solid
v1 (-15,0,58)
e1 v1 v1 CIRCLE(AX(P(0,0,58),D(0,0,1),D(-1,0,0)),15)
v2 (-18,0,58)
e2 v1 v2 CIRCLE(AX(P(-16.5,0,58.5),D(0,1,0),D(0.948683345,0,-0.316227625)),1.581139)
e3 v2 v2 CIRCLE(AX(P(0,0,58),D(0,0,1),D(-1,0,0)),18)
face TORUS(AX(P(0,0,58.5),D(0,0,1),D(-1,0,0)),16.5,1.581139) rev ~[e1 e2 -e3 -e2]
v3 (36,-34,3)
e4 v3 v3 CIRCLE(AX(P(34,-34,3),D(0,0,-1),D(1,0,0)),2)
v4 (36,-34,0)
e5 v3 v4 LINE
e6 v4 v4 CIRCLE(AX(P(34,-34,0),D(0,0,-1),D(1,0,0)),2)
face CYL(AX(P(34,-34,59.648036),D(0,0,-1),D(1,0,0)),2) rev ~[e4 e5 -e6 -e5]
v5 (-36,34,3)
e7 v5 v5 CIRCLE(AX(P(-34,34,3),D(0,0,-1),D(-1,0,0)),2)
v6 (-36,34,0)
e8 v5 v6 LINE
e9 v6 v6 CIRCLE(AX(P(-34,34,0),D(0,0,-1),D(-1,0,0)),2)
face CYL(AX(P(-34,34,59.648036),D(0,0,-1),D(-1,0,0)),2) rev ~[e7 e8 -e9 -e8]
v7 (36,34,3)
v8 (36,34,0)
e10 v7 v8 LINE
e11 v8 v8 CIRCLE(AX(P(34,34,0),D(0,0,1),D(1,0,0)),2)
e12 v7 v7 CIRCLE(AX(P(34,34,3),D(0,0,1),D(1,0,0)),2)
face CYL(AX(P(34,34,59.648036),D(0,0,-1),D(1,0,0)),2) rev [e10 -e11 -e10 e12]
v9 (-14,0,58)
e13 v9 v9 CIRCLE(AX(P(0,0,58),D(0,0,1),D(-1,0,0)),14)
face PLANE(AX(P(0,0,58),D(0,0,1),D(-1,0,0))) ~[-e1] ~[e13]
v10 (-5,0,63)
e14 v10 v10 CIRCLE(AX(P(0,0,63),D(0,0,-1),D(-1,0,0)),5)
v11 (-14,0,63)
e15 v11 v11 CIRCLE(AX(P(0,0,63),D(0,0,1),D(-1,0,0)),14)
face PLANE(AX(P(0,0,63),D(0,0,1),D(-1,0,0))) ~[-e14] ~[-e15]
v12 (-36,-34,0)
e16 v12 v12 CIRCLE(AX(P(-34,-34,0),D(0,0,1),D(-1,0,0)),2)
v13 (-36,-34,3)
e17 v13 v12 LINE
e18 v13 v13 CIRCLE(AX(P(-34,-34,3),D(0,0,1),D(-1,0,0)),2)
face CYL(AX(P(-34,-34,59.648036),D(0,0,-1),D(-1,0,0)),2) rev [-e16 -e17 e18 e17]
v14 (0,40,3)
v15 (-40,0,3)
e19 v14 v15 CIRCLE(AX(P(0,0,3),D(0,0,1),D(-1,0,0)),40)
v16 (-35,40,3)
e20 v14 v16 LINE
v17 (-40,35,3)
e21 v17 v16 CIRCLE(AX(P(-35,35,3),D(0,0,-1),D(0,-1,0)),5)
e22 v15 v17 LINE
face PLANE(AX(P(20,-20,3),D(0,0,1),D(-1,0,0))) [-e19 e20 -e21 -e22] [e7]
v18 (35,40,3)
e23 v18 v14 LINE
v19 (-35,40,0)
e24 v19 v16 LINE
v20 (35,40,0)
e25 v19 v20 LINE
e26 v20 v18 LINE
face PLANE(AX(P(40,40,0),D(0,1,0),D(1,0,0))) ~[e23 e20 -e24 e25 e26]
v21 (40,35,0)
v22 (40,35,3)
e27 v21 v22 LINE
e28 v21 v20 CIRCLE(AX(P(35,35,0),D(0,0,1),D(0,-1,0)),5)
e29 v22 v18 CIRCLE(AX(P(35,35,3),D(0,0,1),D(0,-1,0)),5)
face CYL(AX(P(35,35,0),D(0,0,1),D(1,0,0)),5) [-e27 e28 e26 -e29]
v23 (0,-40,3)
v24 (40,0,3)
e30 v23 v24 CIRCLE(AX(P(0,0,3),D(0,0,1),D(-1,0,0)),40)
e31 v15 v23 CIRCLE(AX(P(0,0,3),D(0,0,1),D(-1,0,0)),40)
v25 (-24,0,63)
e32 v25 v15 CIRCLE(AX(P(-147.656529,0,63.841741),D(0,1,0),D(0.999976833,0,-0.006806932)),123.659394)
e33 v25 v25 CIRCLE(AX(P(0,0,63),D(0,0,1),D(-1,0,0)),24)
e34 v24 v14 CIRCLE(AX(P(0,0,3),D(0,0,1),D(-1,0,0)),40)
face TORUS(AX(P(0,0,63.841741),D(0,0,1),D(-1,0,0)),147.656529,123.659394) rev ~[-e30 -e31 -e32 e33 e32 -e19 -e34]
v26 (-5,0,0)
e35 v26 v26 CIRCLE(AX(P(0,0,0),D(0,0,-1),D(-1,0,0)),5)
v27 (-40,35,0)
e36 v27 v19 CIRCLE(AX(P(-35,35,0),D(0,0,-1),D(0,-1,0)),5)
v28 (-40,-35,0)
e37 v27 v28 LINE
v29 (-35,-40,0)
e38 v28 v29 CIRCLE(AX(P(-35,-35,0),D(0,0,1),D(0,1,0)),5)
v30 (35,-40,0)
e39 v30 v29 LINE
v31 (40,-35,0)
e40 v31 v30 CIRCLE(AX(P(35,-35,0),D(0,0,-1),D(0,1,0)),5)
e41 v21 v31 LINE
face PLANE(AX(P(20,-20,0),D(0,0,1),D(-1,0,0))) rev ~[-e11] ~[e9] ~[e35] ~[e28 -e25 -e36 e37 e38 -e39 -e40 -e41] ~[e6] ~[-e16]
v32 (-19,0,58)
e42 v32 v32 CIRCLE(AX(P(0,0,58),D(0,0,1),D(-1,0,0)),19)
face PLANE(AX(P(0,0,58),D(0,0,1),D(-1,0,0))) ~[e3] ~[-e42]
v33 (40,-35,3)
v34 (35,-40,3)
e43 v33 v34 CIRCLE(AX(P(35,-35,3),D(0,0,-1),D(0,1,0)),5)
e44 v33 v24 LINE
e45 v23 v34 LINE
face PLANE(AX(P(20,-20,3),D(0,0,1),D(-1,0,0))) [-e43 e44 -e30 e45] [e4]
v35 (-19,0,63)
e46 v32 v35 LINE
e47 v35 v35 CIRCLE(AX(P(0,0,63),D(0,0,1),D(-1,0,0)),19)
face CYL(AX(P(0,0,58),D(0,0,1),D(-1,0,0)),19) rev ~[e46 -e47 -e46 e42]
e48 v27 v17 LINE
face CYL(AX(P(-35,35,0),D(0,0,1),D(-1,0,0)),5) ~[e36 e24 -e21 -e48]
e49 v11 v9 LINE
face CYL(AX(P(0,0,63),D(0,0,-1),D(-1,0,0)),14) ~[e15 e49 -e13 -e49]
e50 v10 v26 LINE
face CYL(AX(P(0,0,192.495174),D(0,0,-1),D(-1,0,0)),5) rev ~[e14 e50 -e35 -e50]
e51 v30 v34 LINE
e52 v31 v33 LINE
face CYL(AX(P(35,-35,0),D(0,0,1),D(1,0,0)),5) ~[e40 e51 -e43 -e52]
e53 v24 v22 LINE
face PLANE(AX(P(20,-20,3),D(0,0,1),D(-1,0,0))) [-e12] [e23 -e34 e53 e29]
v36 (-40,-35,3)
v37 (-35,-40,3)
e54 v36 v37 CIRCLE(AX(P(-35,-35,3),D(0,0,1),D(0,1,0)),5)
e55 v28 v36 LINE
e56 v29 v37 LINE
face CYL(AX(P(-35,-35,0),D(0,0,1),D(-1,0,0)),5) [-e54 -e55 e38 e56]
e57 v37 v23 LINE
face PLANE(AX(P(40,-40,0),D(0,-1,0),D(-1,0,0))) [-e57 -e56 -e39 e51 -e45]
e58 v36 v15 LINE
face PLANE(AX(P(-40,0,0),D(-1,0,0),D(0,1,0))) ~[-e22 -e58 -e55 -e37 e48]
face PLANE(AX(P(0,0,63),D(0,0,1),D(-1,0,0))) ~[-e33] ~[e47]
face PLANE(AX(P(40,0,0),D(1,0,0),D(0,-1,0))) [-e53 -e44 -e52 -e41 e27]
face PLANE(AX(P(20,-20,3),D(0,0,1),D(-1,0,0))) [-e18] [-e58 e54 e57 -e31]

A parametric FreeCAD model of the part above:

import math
import FreeCAD as App
import Part
import Sketcher


def edges_at(feature, points):
    """Names of the edges that pass closest to the given points."""
    edges = feature.Shape.Edges
    near = lambda p: min(range(len(edges)), key=lambda i: edges[i].distToShape(Part.Vertex(*p))[0])
    return sorted({f"Edge{near(p) + 1}" for p in points})


def add_polygon(sketch, points):
    """Adds a closed chain of lines whose ends are joined by coincident constraints."""
    first, n = sketch.GeometryCount, len(points)
    for a, b in zip(points, points[1:] + points[:1]):
        sketch.addGeometry(Part.LineSegment(App.Vector(*a, 0), App.Vector(*b, 0)), False)
    for i in range(n):
        sketch.addConstraint(Sketcher.Constraint("Coincident", first + i, 2, first + (i + 1) % n, 1))

doc = App.newDocument("Part")
params = doc.addObject("Spreadsheet::Sheet", "Params")
for row, (alias, value) in enumerate([
    ("sketch1_width", "40 mm"),
    ("pad1_length", "3 mm"),
    ("sketch2_diameter", "4 mm"),
    ("hole_diameter", "4 mm"),
    ("fillet_radius", "5 mm"),
    ("sketch3_width", "40 mm"),
    ("sketch3_width2", "14 mm"),
    ("sketch3_width3", "1 mm"),
    ("sketch3_width4", "5 mm"),
    ("sketch3_height", "60 mm"),
    ("revolution_angle", "360 deg"),
    ("sketch4_diameter", "10 mm"),
    ("hole2_diameter", "10 mm"),
], start=1):
    params.set(f"A{row}", alias)
    params.set(f"B{row}", "=" + value)
    params.setAlias(f"B{row}", alias)

body = doc.addObject("PartDesign::Body", "Body")

sketch1 = doc.addObject("Sketcher::SketchObject", "Sketch")
body.addObject(sketch1)
sketch1.AttachmentSupport = (doc.XY_Plane, [""])
sketch1.MapMode = "FlatFace"
add_polygon(sketch1, [(-40, 40), (-40, 0), (0, 0), (0, 40)])
sketch1.addConstraint(Sketcher.Constraint("Vertical", 0))
sketch1.addConstraint(Sketcher.Constraint("Horizontal", 1))
sketch1.addConstraint(Sketcher.Constraint("Vertical", 2))
sketch1.addConstraint(Sketcher.Constraint("Horizontal", 3))
sketch1.addConstraint(Sketcher.Constraint("Coincident", 1, 2, -1, 1))
sketch1.addConstraint(Sketcher.Constraint("Equal", 3, 0))
sketch1.addConstraint(Sketcher.Constraint("DistanceX", 1, 1, 1, 2, 40.0))
sketch1.setExpression("Constraints[10]", "Params.sketch1_width")
pad1 = doc.addObject("PartDesign::Pad", "Pad")
body.addObject(pad1)
pad1.Profile = sketch1
pad1.setExpression("Length", "Params.pad1_length")

sketch2 = doc.addObject("Sketcher::SketchObject", "Sketch001")
body.addObject(sketch2)
sketch2.AttachmentSupport = (doc.XY_Plane, [""])
sketch2.MapMode = "FlatFace"
sketch2.AttachmentOffset = App.Placement(App.Vector(0, 0, 3), App.Rotation())
sketch2.addGeometry(Part.Circle(App.Vector(-34, 34, 0), App.Vector(0, 0, 1), 2), False)
sketch2.addConstraint(Sketcher.Constraint("Diameter", 0, 4.0))
sketch2.addConstraint(Sketcher.Constraint("DistanceX", 0, 3, -1, 1, 34.0))
sketch2.addConstraint(Sketcher.Constraint("DistanceY", -1, 1, 0, 3, 34.0))
sketch2.setExpression("Constraints[0]", "Params.sketch2_diameter")
doc.recompute()
hole = doc.addObject("PartDesign::Hole", "Hole")
body.addObject(hole)
hole.Profile = sketch2
hole.ThreadType = "None"
hole.setExpression("Diameter", "Params.hole_diameter")
hole.DepthType = "ThroughAll"
doc.recompute()

fillet = doc.addObject("PartDesign::Fillet", "Fillet")
body.addObject(fillet)
fillet.Base = (hole, edges_at(hole, [(-40, 40, 1.5)]))
fillet.setExpression("Radius", "Params.fillet_radius")
body2 = doc.addObject("PartDesign::Body", "Body001")
doc.recompute()

body2.BaseFeature = body
doc.recompute()

mirroring = doc.addObject("Part::Mirroring", "Mirroring")
mirroring.Source = body
mirroring.Base = App.Vector(-20, 0, 1.5)
mirroring.Normal = App.Vector(0, -1, 0)
body3 = doc.addObject("PartDesign::Body", "Body002")
body3.BaseFeature = mirroring
boolean = doc.addObject("PartDesign::Boolean", "Boolean")
body2.addObject(boolean)
boolean.Type = "Fuse"
boolean.addObjects([body3])
doc.recompute()
body4 = doc.addObject("PartDesign::Body", "Body003")
doc.recompute()

body4.BaseFeature = body2
doc.recompute()

mirroring2 = doc.addObject("Part::Mirroring", "Mirroring001")
mirroring2.Source = body2
mirroring2.Base = App.Vector(0, 0, 1.5)
mirroring2.Normal = App.Vector(1, 0, 0)
body5 = doc.addObject("PartDesign::Body", "Body004")
body5.BaseFeature = mirroring2
boolean2 = doc.addObject("PartDesign::Boolean", "Boolean001")
body4.addObject(boolean2)
boolean2.Type = "Fuse"
boolean2.addObjects([body5])
doc.recompute()

sketch3 = doc.addObject("Sketcher::SketchObject", "Sketch002")
body4.addObject(sketch3)
sketch3.AttachmentSupport = (doc.getObject("XZ_Plane003"), [""])
sketch3.MapMode = "FlatFace"
sketch3.addGeometry(Part.LineSegment(App.Vector(-40, 3, 0), App.Vector(0, 3, 0)), False)
sketch3.addGeometry(Part.LineSegment(App.Vector(0, 3, 0), App.Vector(0, 63, 0)), False)
sketch3.addGeometry(Part.LineSegment(App.Vector(0, 63, 0), App.Vector(-14, 63, 0)), False)
sketch3.addGeometry(Part.LineSegment(App.Vector(-14, 63, 0), App.Vector(-14, 58, 0)), False)
sketch3.addGeometry(Part.LineSegment(App.Vector(-14, 58, 0), App.Vector(-15, 58, 0)), False)
sketch3.addGeometry(Part.ArcOfCircle(Part.Circle(App.Vector(-16.5, 58.5, 0), App.Vector(0, 0, 1), 1.6), math.radians(-162), math.radians(-18)), False)
sketch3.addGeometry(Part.LineSegment(App.Vector(-18, 58, 0), App.Vector(-19, 58, 0)), False)
sketch3.addGeometry(Part.LineSegment(App.Vector(-19, 58, 0), App.Vector(-19, 63, 0)), False)
sketch3.addGeometry(Part.LineSegment(App.Vector(-19, 63, 0), App.Vector(-24, 63, 0)), False)
sketch3.addGeometry(Part.ArcOfCircle(Part.Circle(App.Vector(-147.7, 63.8, 0), App.Vector(0, 0, 1), 123.7), math.radians(-29), math.radians(0)), False)
sketch3.addConstraint(Sketcher.Constraint("Coincident", 0, 2, 1, 1))
sketch3.addConstraint(Sketcher.Constraint("Coincident", 1, 2, 2, 1))
sketch3.addConstraint(Sketcher.Constraint("Coincident", 2, 2, 3, 1))
sketch3.addConstraint(Sketcher.Constraint("Coincident", 3, 2, 4, 1))
sketch3.addConstraint(Sketcher.Constraint("Coincident", 4, 2, 5, 2))
sketch3.addConstraint(Sketcher.Constraint("Coincident", 5, 1, 6, 1))
sketch3.addConstraint(Sketcher.Constraint("Coincident", 6, 2, 7, 1))
sketch3.addConstraint(Sketcher.Constraint("Coincident", 7, 2, 8, 1))
sketch3.addConstraint(Sketcher.Constraint("Coincident", 8, 2, 9, 2))
sketch3.addConstraint(Sketcher.Constraint("Coincident", 9, 1, 0, 1))
sketch3.addConstraint(Sketcher.Constraint("Horizontal", 0))
sketch3.addConstraint(Sketcher.Constraint("Vertical", 1))
sketch3.addConstraint(Sketcher.Constraint("Horizontal", 2))
sketch3.addConstraint(Sketcher.Constraint("Vertical", 3))
sketch3.addConstraint(Sketcher.Constraint("Horizontal", 4))
sketch3.addConstraint(Sketcher.Constraint("Horizontal", 6))
sketch3.addConstraint(Sketcher.Constraint("Vertical", 7))
sketch3.addConstraint(Sketcher.Constraint("Horizontal", 8))
sketch3.addConstraint(Sketcher.Constraint("PointOnObject", 0, 2, -2))
sketch3.addConstraint(Sketcher.Constraint("Horizontal", 4, 2, 5, 1))
sketch3.addConstraint(Sketcher.Constraint("Horizontal", 2, 2, 7, 2))
sketch3.addConstraint(Sketcher.Constraint("Equal", 4, 6))
sketch3.addConstraint(Sketcher.Constraint("Equal", 8, 3))
sketch3.addConstraint(Sketcher.Constraint("DistanceX", 0, 1, 0, 2, 40.0))
sketch3.addConstraint(Sketcher.Constraint("DistanceX", 2, 2, 2, 1, 14.0))
sketch3.addConstraint(Sketcher.Constraint("DistanceX", 4, 2, 4, 1, 1.0))
sketch3.addConstraint(Sketcher.Constraint("DistanceX", 8, 2, 8, 1, 5.0))
sketch3.addConstraint(Sketcher.Constraint("DistanceY", 1, 1, 1, 2, 60.0))
sketch3.addConstraint(Sketcher.Constraint("DistanceY", -1, 1, 0, 2, 3.0))
sketch3.addConstraint(Sketcher.Constraint("DistanceX", 5, 1, -1, 1, 18.0))
sketch3.addConstraint(Sketcher.Constraint("DistanceY", -1, 1, 5, 3, 58.5))
sketch3.addConstraint(Sketcher.Constraint("Radius", 9, 123.659394))
sketch3.setExpression("Constraints[23]", "Params.sketch3_width")
sketch3.setExpression("Constraints[24]", "Params.sketch3_width2")
sketch3.setExpression("Constraints[25]", "Params.sketch3_width3")
sketch3.setExpression("Constraints[26]", "Params.sketch3_width4")
sketch3.setExpression("Constraints[27]", "Params.sketch3_height")
revolution = doc.addObject("PartDesign::Revolution", "Revolution")
body4.addObject(revolution)
revolution.Profile = sketch3
revolution.ReferenceAxis = (sketch3, ["V_Axis"])
revolution.setExpression("Angle", "Params.revolution_angle")

sketch4 = doc.addObject("Sketcher::SketchObject", "Sketch003")
body4.addObject(sketch4)
sketch4.AttachmentSupport = (doc.getObject("XY_Plane003"), [""])
sketch4.MapMode = "FlatFace"
sketch4.AttachmentOffset = App.Placement(App.Vector(0, 0, 63), App.Rotation())
sketch4.addGeometry(Part.Circle(App.Vector(0, 0, 0), App.Vector(0, 0, 1), 5), False)
sketch4.addConstraint(Sketcher.Constraint("Coincident", 0, 3, -1, 1))
sketch4.addConstraint(Sketcher.Constraint("Diameter", 0, 10.0))
sketch4.setExpression("Constraints[1]", "Params.sketch4_diameter")
doc.recompute()
hole2 = doc.addObject("PartDesign::Hole", "Hole001")
body4.addObject(hole2)
hole2.Profile = sketch4
hole2.ThreadType = "None"
hole2.setExpression("Diameter", "Params.hole2_diameter")
hole2.DepthType = "ThroughAll"
mirroring.Visibility = False
mirroring2.Visibility = False

doc.recompute()
